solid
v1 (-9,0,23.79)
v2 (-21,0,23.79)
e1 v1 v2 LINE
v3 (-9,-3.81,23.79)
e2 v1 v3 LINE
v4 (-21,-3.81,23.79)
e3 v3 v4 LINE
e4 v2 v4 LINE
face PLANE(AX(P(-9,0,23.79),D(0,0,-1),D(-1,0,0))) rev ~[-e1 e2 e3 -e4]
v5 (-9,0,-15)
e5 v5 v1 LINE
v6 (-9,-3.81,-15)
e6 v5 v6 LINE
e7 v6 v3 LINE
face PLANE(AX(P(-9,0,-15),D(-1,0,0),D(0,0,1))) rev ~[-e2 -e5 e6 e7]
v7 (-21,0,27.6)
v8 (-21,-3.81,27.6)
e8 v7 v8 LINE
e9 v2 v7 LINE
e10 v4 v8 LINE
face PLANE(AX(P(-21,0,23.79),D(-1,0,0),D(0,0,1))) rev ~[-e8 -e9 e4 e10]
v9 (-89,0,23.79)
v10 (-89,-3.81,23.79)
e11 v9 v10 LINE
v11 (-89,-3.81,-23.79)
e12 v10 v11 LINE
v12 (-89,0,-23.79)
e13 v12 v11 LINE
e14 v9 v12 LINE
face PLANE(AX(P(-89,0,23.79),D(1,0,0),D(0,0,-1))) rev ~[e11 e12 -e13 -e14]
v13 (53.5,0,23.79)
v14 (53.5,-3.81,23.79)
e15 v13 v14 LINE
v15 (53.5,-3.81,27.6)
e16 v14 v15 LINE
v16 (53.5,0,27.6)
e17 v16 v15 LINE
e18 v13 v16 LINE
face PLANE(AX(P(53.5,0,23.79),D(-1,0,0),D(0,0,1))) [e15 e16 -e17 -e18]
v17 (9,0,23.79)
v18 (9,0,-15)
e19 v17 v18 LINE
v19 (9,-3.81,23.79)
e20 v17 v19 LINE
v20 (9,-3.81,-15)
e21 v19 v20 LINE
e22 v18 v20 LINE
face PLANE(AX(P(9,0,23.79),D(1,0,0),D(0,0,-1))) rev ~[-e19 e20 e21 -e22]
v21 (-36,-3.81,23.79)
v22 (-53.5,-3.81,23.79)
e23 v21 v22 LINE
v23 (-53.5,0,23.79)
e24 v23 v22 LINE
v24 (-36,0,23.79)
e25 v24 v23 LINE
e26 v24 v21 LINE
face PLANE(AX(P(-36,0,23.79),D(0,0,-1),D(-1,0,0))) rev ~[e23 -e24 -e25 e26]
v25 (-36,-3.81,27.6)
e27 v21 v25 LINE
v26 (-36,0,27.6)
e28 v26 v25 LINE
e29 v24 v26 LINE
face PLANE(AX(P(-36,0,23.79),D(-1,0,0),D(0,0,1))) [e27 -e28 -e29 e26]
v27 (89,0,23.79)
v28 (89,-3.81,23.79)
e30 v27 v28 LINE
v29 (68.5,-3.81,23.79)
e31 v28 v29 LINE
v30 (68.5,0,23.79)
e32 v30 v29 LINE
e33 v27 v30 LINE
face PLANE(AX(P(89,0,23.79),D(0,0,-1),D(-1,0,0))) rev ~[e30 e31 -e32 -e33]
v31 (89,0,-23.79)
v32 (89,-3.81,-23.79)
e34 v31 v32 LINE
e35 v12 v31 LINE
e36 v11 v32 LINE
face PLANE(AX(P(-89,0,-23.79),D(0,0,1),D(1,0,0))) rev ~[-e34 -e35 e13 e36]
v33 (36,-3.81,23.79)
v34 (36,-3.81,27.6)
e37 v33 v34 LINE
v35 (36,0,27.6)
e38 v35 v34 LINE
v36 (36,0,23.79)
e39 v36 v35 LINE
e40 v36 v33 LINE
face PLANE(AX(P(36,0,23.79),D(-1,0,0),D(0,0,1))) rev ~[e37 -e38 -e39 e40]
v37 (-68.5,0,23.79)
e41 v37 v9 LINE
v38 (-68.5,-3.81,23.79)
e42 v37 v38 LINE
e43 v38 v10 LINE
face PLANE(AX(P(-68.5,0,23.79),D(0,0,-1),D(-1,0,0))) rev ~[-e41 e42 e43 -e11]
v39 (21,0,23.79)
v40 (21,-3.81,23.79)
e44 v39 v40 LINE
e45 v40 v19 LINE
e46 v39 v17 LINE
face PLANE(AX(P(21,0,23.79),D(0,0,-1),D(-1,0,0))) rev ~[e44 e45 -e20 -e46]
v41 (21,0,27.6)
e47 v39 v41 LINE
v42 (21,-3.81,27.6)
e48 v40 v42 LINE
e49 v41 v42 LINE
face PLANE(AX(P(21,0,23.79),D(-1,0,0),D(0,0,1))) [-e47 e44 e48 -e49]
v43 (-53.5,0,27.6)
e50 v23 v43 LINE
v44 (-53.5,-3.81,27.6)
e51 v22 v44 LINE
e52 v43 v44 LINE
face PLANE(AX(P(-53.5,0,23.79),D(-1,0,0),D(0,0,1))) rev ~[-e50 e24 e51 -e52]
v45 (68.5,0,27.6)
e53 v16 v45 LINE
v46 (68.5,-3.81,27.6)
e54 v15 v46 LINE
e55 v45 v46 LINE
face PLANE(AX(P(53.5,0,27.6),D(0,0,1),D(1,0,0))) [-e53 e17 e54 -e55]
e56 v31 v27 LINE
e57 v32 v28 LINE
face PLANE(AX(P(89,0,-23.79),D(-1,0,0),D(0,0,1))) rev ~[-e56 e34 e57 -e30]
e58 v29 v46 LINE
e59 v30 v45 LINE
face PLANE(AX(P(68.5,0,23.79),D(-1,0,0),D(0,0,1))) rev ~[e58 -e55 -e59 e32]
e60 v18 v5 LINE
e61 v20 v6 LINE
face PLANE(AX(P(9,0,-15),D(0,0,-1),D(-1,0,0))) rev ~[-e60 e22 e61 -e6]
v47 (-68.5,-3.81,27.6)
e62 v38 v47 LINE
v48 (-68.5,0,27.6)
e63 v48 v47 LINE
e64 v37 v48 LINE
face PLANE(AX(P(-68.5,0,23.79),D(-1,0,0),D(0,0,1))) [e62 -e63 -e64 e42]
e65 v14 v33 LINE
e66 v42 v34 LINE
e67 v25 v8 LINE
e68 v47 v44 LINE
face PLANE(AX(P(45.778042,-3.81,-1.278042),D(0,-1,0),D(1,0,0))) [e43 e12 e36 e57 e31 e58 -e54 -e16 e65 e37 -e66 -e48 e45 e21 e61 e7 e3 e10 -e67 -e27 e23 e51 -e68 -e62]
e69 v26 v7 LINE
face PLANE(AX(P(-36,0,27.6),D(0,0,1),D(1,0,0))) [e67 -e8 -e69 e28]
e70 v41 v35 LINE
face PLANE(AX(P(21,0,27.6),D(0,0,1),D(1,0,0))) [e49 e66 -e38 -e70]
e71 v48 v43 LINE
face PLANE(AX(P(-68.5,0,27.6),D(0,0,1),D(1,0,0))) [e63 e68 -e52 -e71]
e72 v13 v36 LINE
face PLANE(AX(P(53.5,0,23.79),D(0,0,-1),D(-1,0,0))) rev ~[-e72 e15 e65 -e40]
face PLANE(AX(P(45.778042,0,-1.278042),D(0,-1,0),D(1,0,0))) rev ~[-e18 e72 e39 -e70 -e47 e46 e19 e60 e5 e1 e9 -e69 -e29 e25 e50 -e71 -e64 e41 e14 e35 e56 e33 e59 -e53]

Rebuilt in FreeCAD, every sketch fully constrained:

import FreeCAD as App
import Part
import Sketcher
from FreeCAD import Vector
Q = App.Units.Quantity

doc = App.newDocument("Part")
body = doc.addObject("PartDesign::Body", "Body")

sketch1 = body.newObject("Sketcher::SketchObject", "Sketch")
sketch1.AttachmentSupport = (doc.getObject("XZ_Plane"), [""])
sketch1.MapMode = "FlatFace"
sketch1.addGeometry([
    Part.LineSegment(Vector(89, -23.8, 0), Vector(89, 23.8, 0)),
    Part.LineSegment(Vector(89, 23.8, 0), Vector(68.5, 23.8, 0)),
    Part.LineSegment(Vector(68.5, 23.8, 0), Vector(68.5, 27.6, 0)),
    Part.LineSegment(Vector(68.5, 27.6, 0), Vector(53.5, 27.6, 0)),
    Part.LineSegment(Vector(53.5, 27.6, 0), Vector(53.5, 23.8, 0)),
    Part.LineSegment(Vector(53.5, 23.8, 0), Vector(36, 23.8, 0)),
    Part.LineSegment(Vector(36, 23.8, 0), Vector(36, 27.6, 0)),
    Part.LineSegment(Vector(36, 27.6, 0), Vector(21, 27.6, 0)),
    Part.LineSegment(Vector(21, 27.6, 0), Vector(21, 23.8, 0)),
    Part.LineSegment(Vector(21, 23.8, 0), Vector(9, 23.8, 0)),
    Part.LineSegment(Vector(9, 23.8, 0), Vector(9, -15, 0)),
    Part.LineSegment(Vector(9, -15, 0), Vector(-9, -15, 0)),
    Part.LineSegment(Vector(-9, -15, 0), Vector(-9, 23.8, 0)),
    Part.LineSegment(Vector(-9, 23.8, 0), Vector(-21, 23.8, 0)),
    Part.LineSegment(Vector(-21, 23.8, 0), Vector(-21, 27.6, 0)),
    Part.LineSegment(Vector(-21, 27.6, 0), Vector(-36, 27.6, 0)),
    Part.LineSegment(Vector(-36, 27.6, 0), Vector(-36, 23.8, 0)),
    Part.LineSegment(Vector(-36, 23.8, 0), Vector(-53.5, 23.8, 0)),
    Part.LineSegment(Vector(-53.5, 23.8, 0), Vector(-53.5, 27.6, 0)),
    Part.LineSegment(Vector(-53.5, 27.6, 0), Vector(-68.5, 27.6, 0)),
    Part.LineSegment(Vector(-68.5, 27.6, 0), Vector(-68.5, 23.8, 0)),
    Part.LineSegment(Vector(-68.5, 23.8, 0), Vector(-89, 23.8, 0)),
    Part.LineSegment(Vector(-89, 23.8, 0), Vector(-89, -23.8, 0)),
    Part.LineSegment(Vector(-89, -23.8, 0), Vector(89, -23.8, 0)),
], False)
sketch1.addConstraint([
    Sketcher.Constraint("Coincident", 0, 2, 1, 1),
    Sketcher.Constraint("Coincident", 1, 2, 2, 1),
    Sketcher.Constraint("Coincident", 2, 2, 3, 1),
    Sketcher.Constraint("Coincident", 3, 2, 4, 1),
    Sketcher.Constraint("Coincident", 4, 2, 5, 1),
    Sketcher.Constraint("Coincident", 5, 2, 6, 1),
    Sketcher.Constraint("Coincident", 6, 2, 7, 1),
    Sketcher.Constraint("Coincident", 7, 2, 8, 1),
    Sketcher.Constraint("Coincident", 8, 2, 9, 1),
    Sketcher.Constraint("Coincident", 9, 2, 10, 1),
    Sketcher.Constraint("Coincident", 10, 2, 11, 1),
    Sketcher.Constraint("Coincident", 11, 2, 12, 1),
    Sketcher.Constraint("Coincident", 12, 2, 13, 1),
    Sketcher.Constraint("Coincident", 13, 2, 14, 1),
    Sketcher.Constraint("Coincident", 14, 2, 15, 1),
    Sketcher.Constraint("Coincident", 15, 2, 16, 1),
    Sketcher.Constraint("Coincident", 16, 2, 17, 1),
    Sketcher.Constraint("Coincident", 17, 2, 18, 1),
    Sketcher.Constraint("Coincident", 18, 2, 19, 1),
    Sketcher.Constraint("Coincident", 19, 2, 20, 1),
    Sketcher.Constraint("Coincident", 20, 2, 21, 1),
    Sketcher.Constraint("Coincident", 21, 2, 22, 1),
    Sketcher.Constraint("Coincident", 22, 2, 23, 1),
    Sketcher.Constraint("Coincident", 23, 2, 0, 1),
    Sketcher.Constraint("Vertical", 0),
    Sketcher.Constraint("Horizontal", 1),
    Sketcher.Constraint("Vertical", 2),
    Sketcher.Constraint("Horizontal", 3),
    Sketcher.Constraint("Vertical", 4),
    Sketcher.Constraint("Horizontal", 5),
    Sketcher.Constraint("Vertical", 6),
    Sketcher.Constraint("Horizontal", 7),
    Sketcher.Constraint("Vertical", 8),
    Sketcher.Constraint("Horizontal", 9),
    Sketcher.Constraint("Vertical", 10),
    Sketcher.Constraint("Horizontal", 11),
    Sketcher.Constraint("Vertical", 12),
    Sketcher.Constraint("Horizontal", 13),
    Sketcher.Constraint("Vertical", 14),
    Sketcher.Constraint("Horizontal", 15),
    Sketcher.Constraint("Vertical", 16),
    Sketcher.Constraint("Horizontal", 17),
    Sketcher.Constraint("Vertical", 18),
    Sketcher.Constraint("Horizontal", 19),
    Sketcher.Constraint("Vertical", 20),
    Sketcher.Constraint("Horizontal", 21),
    Sketcher.Constraint("Vertical", 22),
    Sketcher.Constraint("Horizontal", 23),
    Sketcher.Constraint("Symmetric", 0, 2, 22, 2, -1, 1),
    Sketcher.Constraint("Symmetric", 9, 2, 12, 2, -2),
    Sketcher.Constraint("Symmetric", 7, 2, 14, 2, -2),
    Sketcher.Constraint("Symmetric", 5, 2, 16, 2, -2),
    Sketcher.Constraint("Symmetric", 3, 2, 18, 2, -2),
    Sketcher.Constraint("Symmetric", 1, 2, 20, 2, -2),
    Sketcher.Constraint("Horizontal", 1, 2, 4, 2),
    Sketcher.Constraint("Horizontal", 3, 2, 6, 2),
    Sketcher.Constraint("Horizontal", 5, 2, 8, 2),
    Sketcher.Constraint("Equal", 3, 7),
    Sketcher.Constraint("DistanceX", 3, 2, 3, 1, Q("15 mm")),
    Sketcher.Constraint("DistanceX", 9, 2, 9, 1, Q("12 mm")),
    Sketcher.Constraint("DistanceX", 11, 2, 11, 1, Q("18 mm")),
    Sketcher.Constraint("DistanceX", 23, 1, 23, 2, Q("178 mm")),
    Sketcher.Constraint("DistanceX", 1, 2, 1, 1, Q("20.5 mm")),
    Sketcher.Constraint("DistanceY", 10, 2, -1, 1, Q("15 mm")),
    Sketcher.Constraint("DistanceY", 0, 1, 0, 2, Q("47.58 mm")),
    Sketcher.Constraint("DistanceY", 2, 1, 2, 2, Q("3.81 mm")),
])
pad1 = body.newObject("PartDesign::Pad", "Pad")
pad1.Profile = sketch1
pad1.Length = 3.81

doc.recompute()
